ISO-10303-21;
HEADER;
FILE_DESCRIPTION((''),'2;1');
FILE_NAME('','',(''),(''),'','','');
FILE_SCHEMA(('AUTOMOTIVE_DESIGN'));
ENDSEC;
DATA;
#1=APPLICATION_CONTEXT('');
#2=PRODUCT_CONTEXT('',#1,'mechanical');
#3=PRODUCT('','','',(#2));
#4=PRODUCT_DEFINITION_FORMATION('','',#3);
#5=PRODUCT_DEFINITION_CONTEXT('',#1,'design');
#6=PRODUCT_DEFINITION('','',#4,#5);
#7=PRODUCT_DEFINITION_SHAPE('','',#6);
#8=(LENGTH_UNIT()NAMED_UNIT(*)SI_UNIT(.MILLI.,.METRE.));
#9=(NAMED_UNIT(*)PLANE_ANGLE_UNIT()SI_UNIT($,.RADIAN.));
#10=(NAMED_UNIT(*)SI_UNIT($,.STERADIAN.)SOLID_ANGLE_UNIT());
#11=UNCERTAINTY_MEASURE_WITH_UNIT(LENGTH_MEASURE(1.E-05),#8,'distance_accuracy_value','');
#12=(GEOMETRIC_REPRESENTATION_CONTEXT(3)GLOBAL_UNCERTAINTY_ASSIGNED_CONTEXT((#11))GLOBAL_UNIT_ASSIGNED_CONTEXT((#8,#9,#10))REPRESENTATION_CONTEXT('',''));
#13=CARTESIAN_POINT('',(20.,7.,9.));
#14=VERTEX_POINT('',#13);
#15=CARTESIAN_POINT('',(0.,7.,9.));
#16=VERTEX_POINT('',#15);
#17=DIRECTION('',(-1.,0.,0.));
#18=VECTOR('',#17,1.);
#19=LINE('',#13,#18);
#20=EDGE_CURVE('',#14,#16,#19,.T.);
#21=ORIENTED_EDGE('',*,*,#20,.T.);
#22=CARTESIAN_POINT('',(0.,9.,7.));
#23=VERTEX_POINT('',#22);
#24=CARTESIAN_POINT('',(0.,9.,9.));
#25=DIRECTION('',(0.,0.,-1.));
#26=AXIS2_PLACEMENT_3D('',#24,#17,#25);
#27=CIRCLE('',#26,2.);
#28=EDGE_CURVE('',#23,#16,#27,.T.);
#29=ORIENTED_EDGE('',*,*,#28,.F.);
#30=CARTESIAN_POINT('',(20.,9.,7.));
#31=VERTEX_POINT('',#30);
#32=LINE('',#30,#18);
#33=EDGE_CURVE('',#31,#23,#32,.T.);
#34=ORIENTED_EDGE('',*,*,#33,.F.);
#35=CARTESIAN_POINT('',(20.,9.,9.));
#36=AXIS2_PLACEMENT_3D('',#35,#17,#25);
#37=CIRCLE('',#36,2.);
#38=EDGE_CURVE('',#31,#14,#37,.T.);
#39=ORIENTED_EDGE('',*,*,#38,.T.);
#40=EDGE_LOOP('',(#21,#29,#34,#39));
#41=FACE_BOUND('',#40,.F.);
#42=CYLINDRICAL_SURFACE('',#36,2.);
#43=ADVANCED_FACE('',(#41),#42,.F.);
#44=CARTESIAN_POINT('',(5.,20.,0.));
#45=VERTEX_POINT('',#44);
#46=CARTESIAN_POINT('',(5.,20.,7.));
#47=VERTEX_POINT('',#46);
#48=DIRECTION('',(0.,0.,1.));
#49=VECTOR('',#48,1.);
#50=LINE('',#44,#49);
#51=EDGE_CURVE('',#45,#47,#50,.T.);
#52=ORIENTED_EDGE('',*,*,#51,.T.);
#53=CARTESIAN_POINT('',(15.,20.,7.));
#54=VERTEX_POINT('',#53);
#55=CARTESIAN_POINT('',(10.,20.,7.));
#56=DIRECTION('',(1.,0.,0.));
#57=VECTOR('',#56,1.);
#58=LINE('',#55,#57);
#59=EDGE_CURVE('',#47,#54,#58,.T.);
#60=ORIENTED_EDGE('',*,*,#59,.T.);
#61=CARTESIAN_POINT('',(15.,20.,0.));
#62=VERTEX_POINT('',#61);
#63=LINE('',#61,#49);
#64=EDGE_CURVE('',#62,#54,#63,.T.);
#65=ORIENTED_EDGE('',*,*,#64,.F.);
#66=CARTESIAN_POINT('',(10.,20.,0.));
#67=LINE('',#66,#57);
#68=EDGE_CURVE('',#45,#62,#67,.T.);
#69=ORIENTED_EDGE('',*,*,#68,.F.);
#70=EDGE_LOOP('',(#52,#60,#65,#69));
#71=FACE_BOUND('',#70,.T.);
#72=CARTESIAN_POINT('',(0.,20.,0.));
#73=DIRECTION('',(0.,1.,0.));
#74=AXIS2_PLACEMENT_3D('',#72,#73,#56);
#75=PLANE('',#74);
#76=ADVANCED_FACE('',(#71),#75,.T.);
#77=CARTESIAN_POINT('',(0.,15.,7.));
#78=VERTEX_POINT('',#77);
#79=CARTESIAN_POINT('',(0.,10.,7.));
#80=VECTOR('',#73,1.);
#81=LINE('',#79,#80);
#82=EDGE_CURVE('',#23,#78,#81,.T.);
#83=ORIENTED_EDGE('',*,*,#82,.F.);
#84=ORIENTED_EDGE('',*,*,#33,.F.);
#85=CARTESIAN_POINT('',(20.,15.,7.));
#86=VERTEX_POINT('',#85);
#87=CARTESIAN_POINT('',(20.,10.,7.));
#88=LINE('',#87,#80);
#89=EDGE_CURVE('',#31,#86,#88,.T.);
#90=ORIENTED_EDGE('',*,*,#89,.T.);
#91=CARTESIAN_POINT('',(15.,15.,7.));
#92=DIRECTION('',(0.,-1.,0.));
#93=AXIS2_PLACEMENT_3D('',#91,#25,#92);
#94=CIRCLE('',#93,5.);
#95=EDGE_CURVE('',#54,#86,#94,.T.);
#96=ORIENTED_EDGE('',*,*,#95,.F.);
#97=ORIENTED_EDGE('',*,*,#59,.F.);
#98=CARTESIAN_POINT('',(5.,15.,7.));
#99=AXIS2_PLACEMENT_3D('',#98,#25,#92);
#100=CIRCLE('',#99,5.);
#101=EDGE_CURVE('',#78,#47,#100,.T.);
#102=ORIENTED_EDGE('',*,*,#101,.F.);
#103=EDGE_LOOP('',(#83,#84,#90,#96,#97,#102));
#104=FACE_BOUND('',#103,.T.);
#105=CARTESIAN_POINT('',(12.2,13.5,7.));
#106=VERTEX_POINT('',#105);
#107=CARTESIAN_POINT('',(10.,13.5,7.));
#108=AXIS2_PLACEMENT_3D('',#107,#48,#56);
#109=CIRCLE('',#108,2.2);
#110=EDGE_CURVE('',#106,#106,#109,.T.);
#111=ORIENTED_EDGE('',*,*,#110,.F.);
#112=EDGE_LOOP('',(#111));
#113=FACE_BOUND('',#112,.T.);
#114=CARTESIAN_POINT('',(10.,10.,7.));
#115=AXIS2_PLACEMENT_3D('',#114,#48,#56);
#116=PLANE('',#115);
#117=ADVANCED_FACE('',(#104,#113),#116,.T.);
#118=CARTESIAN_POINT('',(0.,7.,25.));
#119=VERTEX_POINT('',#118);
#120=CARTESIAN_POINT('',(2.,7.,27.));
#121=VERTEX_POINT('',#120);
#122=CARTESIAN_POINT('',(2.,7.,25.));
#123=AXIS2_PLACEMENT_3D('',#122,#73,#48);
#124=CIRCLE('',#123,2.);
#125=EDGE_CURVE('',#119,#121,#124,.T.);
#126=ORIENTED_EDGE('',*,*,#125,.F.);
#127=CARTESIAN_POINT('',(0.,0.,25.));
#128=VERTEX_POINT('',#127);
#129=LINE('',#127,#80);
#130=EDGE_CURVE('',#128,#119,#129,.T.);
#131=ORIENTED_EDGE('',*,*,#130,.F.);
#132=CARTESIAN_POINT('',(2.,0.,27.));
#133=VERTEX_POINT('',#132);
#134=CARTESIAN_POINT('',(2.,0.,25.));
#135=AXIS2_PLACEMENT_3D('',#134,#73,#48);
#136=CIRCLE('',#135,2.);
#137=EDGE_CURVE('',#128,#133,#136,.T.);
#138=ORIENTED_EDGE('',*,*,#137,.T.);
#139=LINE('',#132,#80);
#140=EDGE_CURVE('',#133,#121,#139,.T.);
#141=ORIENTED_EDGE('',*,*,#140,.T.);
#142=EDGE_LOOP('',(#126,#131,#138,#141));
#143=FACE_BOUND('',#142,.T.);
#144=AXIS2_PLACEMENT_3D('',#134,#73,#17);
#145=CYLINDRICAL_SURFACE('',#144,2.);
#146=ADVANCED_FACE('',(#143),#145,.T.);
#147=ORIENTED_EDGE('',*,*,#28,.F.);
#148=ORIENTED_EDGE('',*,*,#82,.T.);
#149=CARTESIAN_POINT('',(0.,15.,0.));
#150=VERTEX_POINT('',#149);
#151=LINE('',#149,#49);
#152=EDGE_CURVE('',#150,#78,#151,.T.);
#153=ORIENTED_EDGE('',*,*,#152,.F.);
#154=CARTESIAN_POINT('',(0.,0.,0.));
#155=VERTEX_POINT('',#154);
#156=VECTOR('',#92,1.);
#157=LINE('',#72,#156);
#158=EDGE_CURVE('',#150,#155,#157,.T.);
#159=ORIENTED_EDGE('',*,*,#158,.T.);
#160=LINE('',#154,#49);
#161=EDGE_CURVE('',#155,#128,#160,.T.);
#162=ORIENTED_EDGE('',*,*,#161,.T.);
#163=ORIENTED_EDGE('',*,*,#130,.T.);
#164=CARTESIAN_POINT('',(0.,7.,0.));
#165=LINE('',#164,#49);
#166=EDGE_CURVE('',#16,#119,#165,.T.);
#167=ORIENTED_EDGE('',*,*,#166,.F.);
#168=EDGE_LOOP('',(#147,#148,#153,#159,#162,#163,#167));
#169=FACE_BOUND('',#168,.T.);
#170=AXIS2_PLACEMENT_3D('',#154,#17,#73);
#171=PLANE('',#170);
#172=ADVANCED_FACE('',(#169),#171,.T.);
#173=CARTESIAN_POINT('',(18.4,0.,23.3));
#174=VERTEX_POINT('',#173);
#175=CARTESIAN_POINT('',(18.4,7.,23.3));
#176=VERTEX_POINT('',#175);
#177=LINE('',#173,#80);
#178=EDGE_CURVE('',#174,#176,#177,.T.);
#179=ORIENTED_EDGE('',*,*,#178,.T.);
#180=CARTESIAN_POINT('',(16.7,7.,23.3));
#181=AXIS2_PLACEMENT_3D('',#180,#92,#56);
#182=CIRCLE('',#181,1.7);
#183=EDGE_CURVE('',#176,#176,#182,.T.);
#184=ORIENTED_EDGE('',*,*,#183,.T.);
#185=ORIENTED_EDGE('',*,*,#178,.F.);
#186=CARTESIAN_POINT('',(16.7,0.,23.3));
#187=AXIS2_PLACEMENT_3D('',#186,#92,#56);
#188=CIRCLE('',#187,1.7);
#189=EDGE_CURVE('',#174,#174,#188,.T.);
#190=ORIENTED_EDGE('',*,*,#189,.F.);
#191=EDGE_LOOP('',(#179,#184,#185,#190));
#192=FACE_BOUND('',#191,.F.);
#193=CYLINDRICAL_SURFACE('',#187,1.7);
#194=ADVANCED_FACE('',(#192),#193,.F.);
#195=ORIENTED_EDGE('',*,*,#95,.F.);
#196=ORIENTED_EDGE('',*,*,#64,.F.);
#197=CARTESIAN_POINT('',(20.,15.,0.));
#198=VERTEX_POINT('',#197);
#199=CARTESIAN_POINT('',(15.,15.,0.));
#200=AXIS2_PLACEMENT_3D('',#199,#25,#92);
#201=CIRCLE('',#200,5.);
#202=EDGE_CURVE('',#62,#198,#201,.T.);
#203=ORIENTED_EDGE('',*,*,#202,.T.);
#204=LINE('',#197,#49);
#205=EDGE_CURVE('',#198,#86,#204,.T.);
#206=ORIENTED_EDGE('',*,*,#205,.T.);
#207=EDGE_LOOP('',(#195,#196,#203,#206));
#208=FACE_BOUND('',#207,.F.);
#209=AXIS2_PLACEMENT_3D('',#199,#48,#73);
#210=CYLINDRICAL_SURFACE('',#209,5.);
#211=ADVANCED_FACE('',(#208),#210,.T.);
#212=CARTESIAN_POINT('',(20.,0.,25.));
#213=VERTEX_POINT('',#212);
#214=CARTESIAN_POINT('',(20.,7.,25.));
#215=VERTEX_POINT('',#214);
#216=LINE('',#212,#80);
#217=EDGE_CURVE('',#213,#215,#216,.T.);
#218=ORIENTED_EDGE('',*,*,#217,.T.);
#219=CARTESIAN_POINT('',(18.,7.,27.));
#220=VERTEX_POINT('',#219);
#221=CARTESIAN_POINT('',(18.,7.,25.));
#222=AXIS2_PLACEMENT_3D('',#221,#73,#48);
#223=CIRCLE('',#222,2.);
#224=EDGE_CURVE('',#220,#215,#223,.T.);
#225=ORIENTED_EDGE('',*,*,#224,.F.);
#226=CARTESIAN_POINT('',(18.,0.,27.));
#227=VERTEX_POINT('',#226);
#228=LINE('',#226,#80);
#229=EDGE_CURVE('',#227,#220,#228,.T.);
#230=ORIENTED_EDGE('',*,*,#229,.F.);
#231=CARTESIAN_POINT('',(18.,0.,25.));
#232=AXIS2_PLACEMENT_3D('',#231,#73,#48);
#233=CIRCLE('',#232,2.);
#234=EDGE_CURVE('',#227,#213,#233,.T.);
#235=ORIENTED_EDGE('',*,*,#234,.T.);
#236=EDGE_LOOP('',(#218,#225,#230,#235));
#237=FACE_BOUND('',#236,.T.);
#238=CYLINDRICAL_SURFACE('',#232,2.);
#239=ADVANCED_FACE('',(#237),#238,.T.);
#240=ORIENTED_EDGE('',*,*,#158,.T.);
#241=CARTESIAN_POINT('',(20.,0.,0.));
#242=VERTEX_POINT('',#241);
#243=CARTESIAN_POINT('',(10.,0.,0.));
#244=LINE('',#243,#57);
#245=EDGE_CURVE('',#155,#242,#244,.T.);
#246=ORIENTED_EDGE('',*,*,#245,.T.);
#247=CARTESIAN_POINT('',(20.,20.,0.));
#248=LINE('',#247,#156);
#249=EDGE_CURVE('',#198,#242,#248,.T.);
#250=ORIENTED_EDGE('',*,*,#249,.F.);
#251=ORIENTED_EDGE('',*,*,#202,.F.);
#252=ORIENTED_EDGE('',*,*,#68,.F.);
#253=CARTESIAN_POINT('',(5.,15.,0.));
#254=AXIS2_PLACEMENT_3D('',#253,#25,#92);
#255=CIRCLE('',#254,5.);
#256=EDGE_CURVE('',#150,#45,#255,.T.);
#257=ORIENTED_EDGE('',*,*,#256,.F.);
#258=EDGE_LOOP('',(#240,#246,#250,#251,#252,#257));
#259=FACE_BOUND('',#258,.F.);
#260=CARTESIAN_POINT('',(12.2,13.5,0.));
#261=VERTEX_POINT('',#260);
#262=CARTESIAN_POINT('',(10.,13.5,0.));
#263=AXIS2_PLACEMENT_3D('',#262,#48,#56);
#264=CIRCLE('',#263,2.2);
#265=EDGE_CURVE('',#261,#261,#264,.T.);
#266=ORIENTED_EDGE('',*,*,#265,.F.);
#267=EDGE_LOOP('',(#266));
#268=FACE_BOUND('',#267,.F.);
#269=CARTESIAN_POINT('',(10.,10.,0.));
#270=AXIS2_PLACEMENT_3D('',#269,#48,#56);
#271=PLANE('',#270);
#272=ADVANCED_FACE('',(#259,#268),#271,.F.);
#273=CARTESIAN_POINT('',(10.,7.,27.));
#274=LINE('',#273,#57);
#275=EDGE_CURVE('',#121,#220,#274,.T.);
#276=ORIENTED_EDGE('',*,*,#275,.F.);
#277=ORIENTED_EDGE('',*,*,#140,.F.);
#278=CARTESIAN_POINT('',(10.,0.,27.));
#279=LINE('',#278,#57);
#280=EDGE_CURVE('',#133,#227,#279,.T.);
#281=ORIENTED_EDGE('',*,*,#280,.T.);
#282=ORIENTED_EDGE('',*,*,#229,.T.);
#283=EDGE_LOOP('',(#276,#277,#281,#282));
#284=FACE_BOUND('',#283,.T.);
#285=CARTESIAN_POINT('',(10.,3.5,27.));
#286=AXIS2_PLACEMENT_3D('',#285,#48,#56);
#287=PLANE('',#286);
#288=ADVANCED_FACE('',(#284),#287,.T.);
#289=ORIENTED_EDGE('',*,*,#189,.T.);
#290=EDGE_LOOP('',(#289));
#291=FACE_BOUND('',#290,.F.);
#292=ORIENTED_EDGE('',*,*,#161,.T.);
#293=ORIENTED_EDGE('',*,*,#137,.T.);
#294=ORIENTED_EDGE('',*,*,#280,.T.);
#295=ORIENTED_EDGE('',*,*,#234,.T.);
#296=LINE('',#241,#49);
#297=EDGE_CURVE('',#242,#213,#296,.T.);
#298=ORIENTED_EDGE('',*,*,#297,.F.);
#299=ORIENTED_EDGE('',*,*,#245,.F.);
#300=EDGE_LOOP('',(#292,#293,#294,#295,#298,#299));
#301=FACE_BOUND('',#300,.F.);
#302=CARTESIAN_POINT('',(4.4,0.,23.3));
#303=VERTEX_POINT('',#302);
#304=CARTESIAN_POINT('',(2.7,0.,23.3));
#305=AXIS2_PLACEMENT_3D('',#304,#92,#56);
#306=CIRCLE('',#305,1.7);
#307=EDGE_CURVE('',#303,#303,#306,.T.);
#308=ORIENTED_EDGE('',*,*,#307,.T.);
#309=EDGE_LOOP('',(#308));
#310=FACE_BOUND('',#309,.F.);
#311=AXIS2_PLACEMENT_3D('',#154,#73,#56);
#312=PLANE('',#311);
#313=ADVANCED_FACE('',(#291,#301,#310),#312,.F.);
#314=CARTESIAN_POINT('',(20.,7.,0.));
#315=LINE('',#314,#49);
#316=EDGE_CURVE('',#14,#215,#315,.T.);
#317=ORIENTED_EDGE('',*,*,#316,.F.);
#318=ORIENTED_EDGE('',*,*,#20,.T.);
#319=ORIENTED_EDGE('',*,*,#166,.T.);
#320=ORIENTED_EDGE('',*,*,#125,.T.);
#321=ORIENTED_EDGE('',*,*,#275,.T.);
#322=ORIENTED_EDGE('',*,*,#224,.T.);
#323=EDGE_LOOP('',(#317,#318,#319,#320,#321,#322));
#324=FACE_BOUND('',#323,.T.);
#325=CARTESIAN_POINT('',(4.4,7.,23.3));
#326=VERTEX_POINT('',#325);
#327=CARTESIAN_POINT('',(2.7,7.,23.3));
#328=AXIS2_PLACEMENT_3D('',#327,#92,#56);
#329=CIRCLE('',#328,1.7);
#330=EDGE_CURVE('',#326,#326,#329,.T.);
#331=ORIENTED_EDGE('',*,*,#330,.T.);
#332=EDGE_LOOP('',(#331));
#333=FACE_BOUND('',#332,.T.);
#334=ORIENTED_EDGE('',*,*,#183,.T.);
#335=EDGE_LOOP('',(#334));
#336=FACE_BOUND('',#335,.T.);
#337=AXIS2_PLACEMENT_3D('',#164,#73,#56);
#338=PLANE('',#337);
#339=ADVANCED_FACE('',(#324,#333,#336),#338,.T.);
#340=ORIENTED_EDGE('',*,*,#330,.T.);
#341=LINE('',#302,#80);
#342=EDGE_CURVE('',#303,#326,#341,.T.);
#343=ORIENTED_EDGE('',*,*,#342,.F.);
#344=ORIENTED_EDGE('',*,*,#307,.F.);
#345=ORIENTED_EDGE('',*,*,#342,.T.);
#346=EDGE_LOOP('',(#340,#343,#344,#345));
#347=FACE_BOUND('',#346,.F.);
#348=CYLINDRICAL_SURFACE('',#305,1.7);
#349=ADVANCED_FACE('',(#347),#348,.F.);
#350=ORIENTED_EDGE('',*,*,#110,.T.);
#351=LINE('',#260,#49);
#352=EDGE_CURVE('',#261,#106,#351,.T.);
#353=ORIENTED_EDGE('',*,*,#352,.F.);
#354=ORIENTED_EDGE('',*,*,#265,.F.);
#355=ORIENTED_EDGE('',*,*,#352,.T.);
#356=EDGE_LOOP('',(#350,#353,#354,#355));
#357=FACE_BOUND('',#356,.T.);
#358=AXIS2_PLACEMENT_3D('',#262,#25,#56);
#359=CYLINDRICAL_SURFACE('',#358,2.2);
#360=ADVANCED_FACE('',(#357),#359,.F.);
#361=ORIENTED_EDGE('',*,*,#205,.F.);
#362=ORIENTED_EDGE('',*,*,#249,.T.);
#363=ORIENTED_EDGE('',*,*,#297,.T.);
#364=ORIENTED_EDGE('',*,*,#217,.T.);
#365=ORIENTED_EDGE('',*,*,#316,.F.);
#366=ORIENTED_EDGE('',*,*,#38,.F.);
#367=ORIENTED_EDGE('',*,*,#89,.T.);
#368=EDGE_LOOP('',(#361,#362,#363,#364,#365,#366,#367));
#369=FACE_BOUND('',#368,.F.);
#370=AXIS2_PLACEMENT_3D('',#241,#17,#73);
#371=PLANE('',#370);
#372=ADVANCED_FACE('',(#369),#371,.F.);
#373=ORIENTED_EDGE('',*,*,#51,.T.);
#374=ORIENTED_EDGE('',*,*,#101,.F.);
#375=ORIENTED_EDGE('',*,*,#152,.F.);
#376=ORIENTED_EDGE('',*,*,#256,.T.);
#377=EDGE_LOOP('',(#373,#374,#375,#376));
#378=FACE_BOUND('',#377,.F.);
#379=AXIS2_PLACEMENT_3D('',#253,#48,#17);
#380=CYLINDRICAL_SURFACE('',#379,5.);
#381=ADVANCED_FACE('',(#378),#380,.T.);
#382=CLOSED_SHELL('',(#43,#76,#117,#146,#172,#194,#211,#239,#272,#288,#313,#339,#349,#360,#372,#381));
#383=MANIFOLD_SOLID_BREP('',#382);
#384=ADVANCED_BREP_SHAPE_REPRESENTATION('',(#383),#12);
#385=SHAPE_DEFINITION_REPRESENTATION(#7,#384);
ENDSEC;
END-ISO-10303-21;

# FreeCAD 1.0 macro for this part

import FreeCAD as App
import Part
import Sketcher
from FreeCAD import Vector
Q = App.Units.Quantity


def edges_at(feature, points):
    """Names of the edges that pass closest to the given points."""
    edges = feature.Shape.Edges
    near = lambda p: min(range(len(edges)), key=lambda i: edges[i].distToShape(Part.Vertex(*p))[0])
    return sorted({f"Edge{near(p) + 1}" for p in points})


def add_polygon(sketch, points):
    """Adds a closed chain of lines whose ends are joined by coincident constraints."""
    first, n = sketch.GeometryCount, len(points)
    for a, b in zip(points, points[1:] + points[:1]):
        sketch.addGeometry(Part.LineSegment(App.Vector(*a, 0), App.Vector(*b, 0)), False)
    for i in range(n):
        sketch.addConstraint(Sketcher.Constraint("Coincident", first + i, 2, first + (i + 1) % n, 1))

doc = App.newDocument("Part")
body = doc.addObject("PartDesign::Body", "Body")

sketch1 = body.newObject("Sketcher::SketchObject", "Sketch")
sketch1.AttachmentSupport = (doc.getObject("XY_Plane"), [""])
sketch1.MapMode = "FlatFace"
add_polygon(sketch1, [(0, 20), (0, 0), (20, 0), (20, 20)])
sketch1.addGeometry(Part.Circle(Vector(10, 13.5, 0), Vector(0, 0, 1), 2.2), False)
sketch1.addConstraint(Sketcher.Constraint("Vertical", 0))
sketch1.addConstraint(Sketcher.Constraint("Horizontal", 1))
sketch1.addConstraint(Sketcher.Constraint("Vertical", 2))
sketch1.addConstraint(Sketcher.Constraint("Horizontal", 3))
sketch1.addConstraint(Sketcher.Constraint("Coincident", 0, 2, -1, 1))
sketch1.addConstraint(Sketcher.Constraint("Equal", 3, 0))
sketch1.addConstraint(Sketcher.Constraint("Diameter", 4, Q("4.4 mm")))
sketch1.addConstraint(Sketcher.Constraint("DistanceX", 1, 1, 1, 2, Q("20 mm")))
sketch1.addConstraint(Sketcher.Constraint("DistanceX", -1, 1, 4, 3, Q("10 mm")))
sketch1.addConstraint(Sketcher.Constraint("DistanceY", -1, 1, 4, 3, Q("13.5 mm")))
pad1 = body.newObject("PartDesign::Pad", "Pad")
pad1.Profile = sketch1
pad1.Length = 7

sketch2 = body.newObject("Sketcher::SketchObject", "Sketch001")
sketch2.AttachmentSupport = (doc.getObject("XY_Plane"), [""])
sketch2.MapMode = "FlatFace"
add_polygon(sketch2, [(0, 7), (0, 0), (20, 0), (20, 7)])
sketch2.addConstraint(Sketcher.Constraint("Vertical", 0))
sketch2.addConstraint(Sketcher.Constraint("Horizontal", 1))
sketch2.addConstraint(Sketcher.Constraint("Vertical", 2))
sketch2.addConstraint(Sketcher.Constraint("Horizontal", 3))
sketch2.addConstraint(Sketcher.Constraint("Coincident", 0, 2, -1, 1))
sketch2.addConstraint(Sketcher.Constraint("DistanceX", 1, 1, 1, 2, Q("20 mm")))
sketch2.addConstraint(Sketcher.Constraint("DistanceY", 0, 2, 0, 1, Q("7 mm")))
pad2 = body.newObject("PartDesign::Pad", "Pad001")
pad2.Profile = sketch2
pad2.Length = 27

sketch3 = body.newObject("Sketcher::SketchObject", "Sketch002")
sketch3.AttachmentSupport = (doc.getObject("XZ_Plane"), [""])
sketch3.MapMode = "FlatFace"
sketch3.addGeometry(Part.Circle(Vector(2.7, 23.3, 0), Vector(0, 0, 1), 1.7), False)
sketch3.addGeometry(Part.Circle(Vector(16.7, 23.3, 0), Vector(0, 0, 1), 1.7), False)
sketch3.addConstraint(Sketcher.Constraint("Equal", 0, 1))
sketch3.addConstraint(Sketcher.Constraint("Horizontal", 0, 3, 1, 3))
sketch3.addConstraint(Sketcher.Constraint("Diameter", 0, Q("3.4 mm")))
sketch3.addConstraint(Sketcher.Constraint("DistanceX", 0, 3, 1, 3, Q("14 mm")))
sketch3.addConstraint(Sketcher.Constraint("DistanceX", -1, 1, 0, 3, Q("2.7 mm")))
sketch3.addConstraint(Sketcher.Constraint("DistanceY", -1, 1, 0, 3, Q("23.3 mm")))
pocket1 = body.newObject("PartDesign::Pocket", "Pocket")
pocket1.Profile = sketch3
pocket1.Type = "ThroughAll"
doc.recompute()

fillet = body.newObject("PartDesign::Fillet", "Fillet")
fillet.Base = (pocket1, edges_at(pocket1, [(0, 20, 3.5), (20, 20, 3.5)]))
fillet.Radius = 5
doc.recompute()

fillet2 = body.newObject("PartDesign::Fillet", "Fillet001")
fillet2.Base = (fillet, edges_at(fillet, [(0, 3.5, 27), (20, 3.5, 27), (10, 7, 7)]))
fillet2.Radius = 2

doc.recompute()
